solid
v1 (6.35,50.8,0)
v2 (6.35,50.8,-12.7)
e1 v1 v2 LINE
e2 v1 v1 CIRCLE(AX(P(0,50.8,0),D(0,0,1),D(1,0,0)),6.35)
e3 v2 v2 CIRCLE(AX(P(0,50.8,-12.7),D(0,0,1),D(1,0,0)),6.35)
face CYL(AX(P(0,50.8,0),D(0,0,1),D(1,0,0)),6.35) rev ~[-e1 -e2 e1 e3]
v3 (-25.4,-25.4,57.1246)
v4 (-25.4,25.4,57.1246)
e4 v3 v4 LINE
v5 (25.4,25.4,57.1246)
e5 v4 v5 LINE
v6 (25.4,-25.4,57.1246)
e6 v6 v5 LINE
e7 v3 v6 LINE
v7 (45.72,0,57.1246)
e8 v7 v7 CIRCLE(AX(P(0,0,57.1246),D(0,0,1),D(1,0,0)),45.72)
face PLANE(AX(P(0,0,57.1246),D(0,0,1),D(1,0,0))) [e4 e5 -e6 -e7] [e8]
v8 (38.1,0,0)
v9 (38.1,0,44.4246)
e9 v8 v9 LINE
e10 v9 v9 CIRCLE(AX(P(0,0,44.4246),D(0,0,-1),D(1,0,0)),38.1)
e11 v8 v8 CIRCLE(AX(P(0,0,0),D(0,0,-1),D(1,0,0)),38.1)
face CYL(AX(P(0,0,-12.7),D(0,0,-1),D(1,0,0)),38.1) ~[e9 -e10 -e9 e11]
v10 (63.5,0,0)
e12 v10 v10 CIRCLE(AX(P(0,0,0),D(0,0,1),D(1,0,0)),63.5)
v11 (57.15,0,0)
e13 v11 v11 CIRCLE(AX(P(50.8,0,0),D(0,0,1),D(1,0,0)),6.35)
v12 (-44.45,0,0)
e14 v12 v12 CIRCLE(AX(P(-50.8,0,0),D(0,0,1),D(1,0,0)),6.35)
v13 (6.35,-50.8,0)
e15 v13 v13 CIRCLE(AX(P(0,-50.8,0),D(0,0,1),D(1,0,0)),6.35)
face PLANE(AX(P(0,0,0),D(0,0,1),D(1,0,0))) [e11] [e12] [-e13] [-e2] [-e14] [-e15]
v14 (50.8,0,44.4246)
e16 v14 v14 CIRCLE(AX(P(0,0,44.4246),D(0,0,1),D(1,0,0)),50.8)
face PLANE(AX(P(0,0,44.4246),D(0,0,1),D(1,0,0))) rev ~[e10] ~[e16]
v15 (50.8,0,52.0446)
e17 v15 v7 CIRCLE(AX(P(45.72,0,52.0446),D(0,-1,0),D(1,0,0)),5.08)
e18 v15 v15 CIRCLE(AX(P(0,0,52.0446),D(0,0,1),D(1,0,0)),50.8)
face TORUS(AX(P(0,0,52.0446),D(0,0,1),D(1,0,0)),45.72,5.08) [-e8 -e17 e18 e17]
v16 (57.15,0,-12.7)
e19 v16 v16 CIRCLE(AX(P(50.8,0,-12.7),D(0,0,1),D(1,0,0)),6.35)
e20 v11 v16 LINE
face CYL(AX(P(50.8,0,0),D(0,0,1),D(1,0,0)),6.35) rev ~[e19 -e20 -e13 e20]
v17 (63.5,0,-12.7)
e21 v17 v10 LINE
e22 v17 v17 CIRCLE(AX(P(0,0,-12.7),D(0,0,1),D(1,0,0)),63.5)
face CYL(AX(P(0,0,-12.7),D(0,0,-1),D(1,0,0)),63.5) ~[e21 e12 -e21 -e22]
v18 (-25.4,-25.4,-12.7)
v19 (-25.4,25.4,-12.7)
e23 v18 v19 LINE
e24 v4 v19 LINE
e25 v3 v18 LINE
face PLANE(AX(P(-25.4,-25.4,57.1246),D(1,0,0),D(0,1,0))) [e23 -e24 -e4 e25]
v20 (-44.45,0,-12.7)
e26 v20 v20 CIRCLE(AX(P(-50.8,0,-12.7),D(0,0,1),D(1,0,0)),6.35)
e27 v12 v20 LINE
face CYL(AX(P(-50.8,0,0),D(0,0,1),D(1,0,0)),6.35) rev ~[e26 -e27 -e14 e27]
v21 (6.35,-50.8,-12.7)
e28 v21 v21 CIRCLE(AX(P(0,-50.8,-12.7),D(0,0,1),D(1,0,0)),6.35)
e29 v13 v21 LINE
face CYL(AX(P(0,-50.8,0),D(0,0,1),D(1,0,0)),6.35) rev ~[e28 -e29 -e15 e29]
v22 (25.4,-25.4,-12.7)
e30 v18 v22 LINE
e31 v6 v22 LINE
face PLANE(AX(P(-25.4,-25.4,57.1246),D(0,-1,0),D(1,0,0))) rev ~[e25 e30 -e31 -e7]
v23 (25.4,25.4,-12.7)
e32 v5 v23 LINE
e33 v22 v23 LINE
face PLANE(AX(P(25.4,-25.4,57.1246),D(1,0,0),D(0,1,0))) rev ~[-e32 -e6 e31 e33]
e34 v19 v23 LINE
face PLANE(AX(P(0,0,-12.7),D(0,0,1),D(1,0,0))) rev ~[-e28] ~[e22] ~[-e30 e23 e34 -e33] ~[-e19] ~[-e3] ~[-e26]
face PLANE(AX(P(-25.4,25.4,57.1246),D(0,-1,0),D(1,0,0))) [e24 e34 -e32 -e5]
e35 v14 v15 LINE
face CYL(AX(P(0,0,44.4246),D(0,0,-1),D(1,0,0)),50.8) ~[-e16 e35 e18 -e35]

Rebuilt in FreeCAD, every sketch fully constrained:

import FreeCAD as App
import Part
import Sketcher

V = App.Vector
Q = App.Units.Quantity


def edges_at(feature, points):
    """Names of the edges that pass closest to the given points."""
    edges = feature.Shape.Edges
    near = lambda p: min(range(len(edges)), key=lambda i: edges[i].distToShape(Part.Vertex(*p))[0])
    return sorted({f"Edge{near(p) + 1}" for p in points})


def add_polygon(sketch, points):
    """Adds a closed chain of lines whose ends are joined by coincident constraints."""
    first, n = sketch.GeometryCount, len(points)
    for a, b in zip(points, points[1:] + points[:1]):
        sketch.addGeometry(Part.LineSegment(App.Vector(*a, 0), App.Vector(*b, 0)), False)
    for i in range(n):
        sketch.addConstraint(Sketcher.Constraint("Coincident", first + i, 2, first + (i + 1) % n, 1))

doc = App.newDocument("Part")
body = doc.addObject("PartDesign::Body", "Body")

# Sketch on XY plane
sketch1 = doc.addObject("Sketcher::SketchObject", "Sketch")
body.addObject(sketch1)
sketch1.AttachmentSupport = (doc.XY_Plane, [""])
sketch1.MapMode = "FlatFace"
sketch1.addGeometry(Part.Circle(V(0, 0, 0), V(0, 0, 1), 64), False)
sketch1.addConstraint([
    Sketcher.Constraint("Coincident", 0, 3, -1, 1),
    Sketcher.Constraint("Diameter", 0, Q("5 in")),
])
pad1 = doc.addObject("PartDesign::Pad", "Pad")
body.addObject(pad1)
pad1.Profile = sketch1
pad1.Length = Q("0.5 in")

# Sketch on XY plane
sketch2 = doc.addObject("Sketcher::SketchObject", "Sketch001")
body.addObject(sketch2)
sketch2.AttachmentSupport = (doc.XY_Plane, [""])
sketch2.MapMode = "FlatFace"
sketch2.addGeometry(Part.Circle(V(0, 0, 0), V(0, 0, 1), 38), False)
sketch2.addConstraint([
    Sketcher.Constraint("Coincident", 0, 3, -1, 1),
    Sketcher.Constraint("Diameter", 0, Q("3 in")),
])
pad2 = doc.addObject("PartDesign::Pad", "Pad001")
body.addObject(pad2)
pad2.Profile = sketch2
pad2.Length = Q("2.25 in")
body2 = doc.addObject("PartDesign::Body", "Body001")
doc.recompute()

body.Placement = App.Placement(V(0, 0, -57.1246), App.Rotation(V(0, 0, 1), 0))
boolean = doc.addObject("PartDesign::Boolean", "Boolean")
body2.addObject(boolean)
boolean.Type = "Fuse"
boolean.addObjects([body])

# Sketch on XY plane
sketch3 = doc.addObject("Sketcher::SketchObject", "Sketch002")
body2.addObject(sketch3)
sketch3.AttachmentSupport = (doc.getObject("XY_Plane001"), [""])
sketch3.MapMode = "FlatFace"
sketch3.addGeometry(Part.Circle(V(0, 0, 0), V(0, 0, 1), 51), False)
sketch3.addConstraint([
    Sketcher.Constraint("Coincident", 0, 3, -1, 1),
    Sketcher.Constraint("Diameter", 0, Q("4 in")),
])
pad3 = doc.addObject("PartDesign::Pad", "Pad002")
body2.addObject(pad3)
pad3.Profile = sketch3
pad3.Length = Q("0.5 in")
body3 = doc.addObject("PartDesign::Body", "Body002")
doc.recompute()

body2.Placement = App.Placement(V(0, 0, -12.7), App.Rotation(V(0, 0, 1), 0))
boolean2 = doc.addObject("PartDesign::Boolean", "Boolean001")
body3.addObject(boolean2)
boolean2.Type = "Fuse"
boolean2.addObjects([body2])

# Sketch on XY plane
sketch4 = doc.addObject("Sketcher::SketchObject", "Sketch003")
body3.addObject(sketch4)
sketch4.AttachmentSupport = (doc.getObject("XY_Plane002"), [""])
sketch4.MapMode = "FlatFace"
add_polygon(sketch4, [(-25, 25), (-25, -25), (25, -25), (25, 25)])  # lines 0-3
sketch4.addConstraint([
    Sketcher.Constraint("Vertical", 0),
    Sketcher.Constraint("Horizontal", 1),
    Sketcher.Constraint("Vertical", 2),
    Sketcher.Constraint("Horizontal", 3),
    Sketcher.Constraint("Symmetric", 0, 2, 2, 2, -1, 1),
    Sketcher.Constraint("Equal", 3, 0),
    Sketcher.Constraint("DistanceX", 1, 1, 1, 2, Q("2 in")),
])
pocket1 = doc.addObject("PartDesign::Pocket", "Pocket")
body3.addObject(pocket1)
pocket1.Profile = sketch4
pocket1.Length = Q("3.25 in")
doc.recompute()

fillet = doc.addObject("PartDesign::Fillet", "Fillet")
body3.addObject(fillet)
fillet.Base = (pocket1, edges_at(pocket1, [(-50.8, 0, 0)]))
fillet.Radius = Q("0.2 in")
body4 = doc.addObject("PartDesign::Body", "Body003")
doc.recompute()

body3.Placement = App.Placement(V(0, 0, 57.1246), App.Rotation(V(0, 0, 1), 0))
boolean3 = doc.addObject("PartDesign::Boolean", "Boolean002")
body4.addObject(boolean3)
boolean3.Type = "Fuse"
boolean3.addObjects([body3])

# Sketch on XY plane
sketch5 = doc.addObject("Sketcher::SketchObject", "Sketch004")
body4.addObject(sketch5)
sketch5.AttachmentSupport = (doc.getObject("XY_Plane003"), [""])
sketch5.MapMode = "FlatFace"
sketch5.addGeometry([
    Part.Circle(V(0, -51, 0), V(0, 0, 1), 6),
    Part.Circle(V(51, 0, 0), V(0, 0, 1), 6),
    Part.Circle(V(0, 51, 0), V(0, 0, 1), 6),
    Part.Circle(V(-51, 0, 0), V(0, 0, 1), 6),
], False)
sketch5.addConstraint([
    Sketcher.Constraint("Equal", 0, 1),
    Sketcher.Constraint("Equal", 1, 2),
    Sketcher.Constraint("Equal", 2, 3),
    Sketcher.Constraint("Symmetric", 0, 3, 2, 3, -1, 1),
    Sketcher.Constraint("Symmetric", 1, 3, 3, 3, -1, 1),
    Sketcher.Constraint("PointOnObject", 0, 3, -2),
    Sketcher.Constraint("PointOnObject", 1, 3, -1),
    Sketcher.Constraint("Diameter", 0, Q("0.5 in")),
    Sketcher.Constraint("DistanceY", 0, 3, -1, 1, Q("2 in")),
    Sketcher.Constraint("DistanceX", -1, 1, 1, 3, Q("2 in")),
])
pocket2 = doc.addObject("PartDesign::Pocket", "Pocket001")
body4.addObject(pocket2)
pocket2.Profile = sketch5
pocket2.Length = Q("1 in")

doc.recompute()
